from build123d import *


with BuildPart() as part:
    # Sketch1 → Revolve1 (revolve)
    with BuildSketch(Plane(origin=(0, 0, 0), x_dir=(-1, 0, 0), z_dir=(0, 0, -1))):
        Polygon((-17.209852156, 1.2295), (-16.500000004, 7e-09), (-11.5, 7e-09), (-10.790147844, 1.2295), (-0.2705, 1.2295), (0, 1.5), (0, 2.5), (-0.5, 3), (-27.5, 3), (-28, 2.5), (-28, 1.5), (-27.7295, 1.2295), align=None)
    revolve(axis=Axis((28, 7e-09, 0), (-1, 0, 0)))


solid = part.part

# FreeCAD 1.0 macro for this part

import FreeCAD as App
import Part
import Sketcher

V = App.Vector
Q = App.Units.Quantity

doc = App.newDocument("Part")
body = doc.addObject("PartDesign::Body", "Body")

sketch1 = body.newObject("Sketcher::SketchObject", "Sketch")
sketch1.AttachmentSupport = (doc.getObject("XY_Plane"), [""])
sketch1.MapMode = "FlatFace"
sketch1.addGeometry([
    Part.LineSegment(V(17.209852, 1.2295, 0), V(16.5, 0, 0)),
    Part.LineSegment(V(16.5, 0, 0), V(11.5, 0, 0)),
    Part.LineSegment(V(11.5, 0, 0), V(10.790148, 1.2295, 0)),
    Part.LineSegment(V(10.790148, 1.2295, 0), V(0.2705, 1.2295, 0)),
    Part.LineSegment(V(0.2705, 1.2295, 0), V(0, 1.5, 0)),
    Part.LineSegment(V(0, 1.5, 0), V(0, 2.5, 0)),
    Part.LineSegment(V(0, 2.5, 0), V(0.5, 3, 0)),
    Part.LineSegment(V(0.5, 3, 0), V(27.5, 3, 0)),
    Part.LineSegment(V(27.5, 3, 0), V(28, 2.5, 0)),
    Part.LineSegment(V(28, 2.5, 0), V(28, 1.5, 0)),
    Part.LineSegment(V(28, 1.5, 0), V(27.7295, 1.2295, 0)),
    Part.LineSegment(V(27.7295, 1.2295, 0), V(17.209852, 1.2295, 0)),
], False)
sketch1.addConstraint([
    Sketcher.Constraint("Coincident", 0, 2, 1, 1),
    Sketcher.Constraint("Coincident", 1, 2, 2, 1),
    Sketcher.Constraint("Coincident", 2, 2, 3, 1),
    Sketcher.Constraint("Coincident", 3, 2, 4, 1),
    Sketcher.Constraint("Coincident", 4, 2, 5, 1),
    Sketcher.Constraint("Coincident", 5, 2, 6, 1),
    Sketcher.Constraint("Coincident", 6, 2, 7, 1),
    Sketcher.Constraint("Coincident", 7, 2, 8, 1),
    Sketcher.Constraint("Coincident", 8, 2, 9, 1),
    Sketcher.Constraint("Coincident", 9, 2, 10, 1),
    Sketcher.Constraint("Coincident", 10, 2, 11, 1),
    Sketcher.Constraint("Coincident", 11, 2, 0, 1),
    Sketcher.Constraint("Horizontal", 1),
    Sketcher.Constraint("Horizontal", 3),
    Sketcher.Constraint("Vertical", 5),
    Sketcher.Constraint("Horizontal", 7),
    Sketcher.Constraint("Vertical", 9),
    Sketcher.Constraint("Horizontal", 11),
    Sketcher.Constraint("PointOnObject", 0, 2, -1),
    Sketcher.Constraint("PointOnObject", 4, 2, -2),
    Sketcher.Constraint("Perpendicular", 4, 6),
    Sketcher.Constraint("Perpendicular", 6, 8),
    Sketcher.Constraint("Perpendicular", 8, 10),
    Sketcher.Constraint("Horizontal", 5, 2, 8, 2),
    Sketcher.Constraint("Horizontal", 4, 2, 9, 2),
    Sketcher.Constraint("Horizontal", 3, 2, 10, 2),
    Sketcher.Constraint("Equal", 3, 11),
    Sketcher.Constraint("Equal", 0, 2),
    Sketcher.Constraint("Equal", 6, 8),
    Sketcher.Constraint("DistanceX", 1, 2, 1, 1, 5.0),
    Sketcher.Constraint("DistanceX", 7, 1, 7, 2, 27.0),
    Sketcher.Constraint("DistanceY", 5, 1, 5, 2, 1.0),
    Sketcher.Constraint("Angle", 0, Q("-120 deg")),
    Sketcher.Constraint("DistanceY", -1, 1, 6, 2, 3.0),
    Sketcher.Constraint("DistanceX", -1, 1, 8, 2, 28.0),
    Sketcher.Constraint("DistanceY", -1, 1, 2, 2, 1.2295),
])
revolution = body.newObject("PartDesign::Revolution", "Revolution")
revolution.Profile = sketch1
revolution.ReferenceAxis = (sketch1, ["H_Axis"])
revolution.Angle = 360

doc.recompute()
